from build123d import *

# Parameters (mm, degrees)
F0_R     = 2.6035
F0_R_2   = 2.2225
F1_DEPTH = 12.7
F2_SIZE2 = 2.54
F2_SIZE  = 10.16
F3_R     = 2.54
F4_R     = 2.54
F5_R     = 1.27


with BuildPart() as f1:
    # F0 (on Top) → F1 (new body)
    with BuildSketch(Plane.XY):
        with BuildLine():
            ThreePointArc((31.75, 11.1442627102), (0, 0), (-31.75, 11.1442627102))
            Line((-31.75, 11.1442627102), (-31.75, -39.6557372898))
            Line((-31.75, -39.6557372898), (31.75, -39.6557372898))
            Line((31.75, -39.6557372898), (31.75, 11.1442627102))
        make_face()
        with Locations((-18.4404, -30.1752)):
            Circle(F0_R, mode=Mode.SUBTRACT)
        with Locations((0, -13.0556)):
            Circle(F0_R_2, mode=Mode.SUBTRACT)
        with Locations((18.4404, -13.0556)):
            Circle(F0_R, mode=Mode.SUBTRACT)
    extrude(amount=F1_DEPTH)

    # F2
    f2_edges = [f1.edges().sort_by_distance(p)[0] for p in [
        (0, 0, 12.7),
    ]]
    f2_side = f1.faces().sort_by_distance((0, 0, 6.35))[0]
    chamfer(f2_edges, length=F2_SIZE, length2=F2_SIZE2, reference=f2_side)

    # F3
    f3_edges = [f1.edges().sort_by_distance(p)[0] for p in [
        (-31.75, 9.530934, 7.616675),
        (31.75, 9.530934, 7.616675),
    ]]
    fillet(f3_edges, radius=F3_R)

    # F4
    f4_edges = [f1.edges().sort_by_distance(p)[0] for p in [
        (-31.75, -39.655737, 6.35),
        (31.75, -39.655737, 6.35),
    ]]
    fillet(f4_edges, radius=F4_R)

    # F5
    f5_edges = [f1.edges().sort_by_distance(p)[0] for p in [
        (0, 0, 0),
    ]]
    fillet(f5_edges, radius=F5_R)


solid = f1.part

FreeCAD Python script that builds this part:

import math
import FreeCAD as App
import Part
import Sketcher
Q = App.Units.Quantity


def edges_at(feature, points):
    """Names of the edges that pass closest to the given points."""
    edges = feature.Shape.Edges
    near = lambda p: min(range(len(edges)), key=lambda i: edges[i].distToShape(Part.Vertex(*p))[0])
    return sorted({f"Edge{near(p) + 1}" for p in points})

doc = App.newDocument("Part")
body = doc.addObject("PartDesign::Body", "Body")

# Sketch on XY plane
sketch1 = doc.addObject("Sketcher::SketchObject", "Sketch")
body.addObject(sketch1)
sketch1.AttachmentSupport = (doc.XY_Plane, [""])
sketch1.MapMode = "FlatFace"
sketch1.addGeometry(Part.ArcOfCircle(Part.Circle(App.Vector(0, 50.8, 0), App.Vector(0, 0, 1), 50.8), math.radians(-129), math.radians(-51)), False)
sketch1.addGeometry(Part.LineSegment(App.Vector(-31.8, 11.1, 0), App.Vector(-31.8, -39.7, 0)), False)
sketch1.addGeometry(Part.LineSegment(App.Vector(-31.8, -39.7, 0), App.Vector(31.8, -39.7, 0)), False)
sketch1.addGeometry(Part.LineSegment(App.Vector(31.8, -39.7, 0), App.Vector(31.8, 11.1, 0)), False)
sketch1.addGeometry(Part.Circle(App.Vector(-18.4, -30.2, 0), App.Vector(0, 0, 1), 2.6), False)
sketch1.addGeometry(Part.Circle(App.Vector(0, -13.1, 0), App.Vector(0, 0, 1), 2.2), False)
sketch1.addGeometry(Part.Circle(App.Vector(18.4, -13.1, 0), App.Vector(0, 0, 1), 2.6), False)
sketch1.addConstraint(Sketcher.Constraint("Coincident", 0, 1, 1, 1))
sketch1.addConstraint(Sketcher.Constraint("Coincident", 1, 2, 2, 1))
sketch1.addConstraint(Sketcher.Constraint("Coincident", 2, 2, 3, 1))
sketch1.addConstraint(Sketcher.Constraint("Coincident", 3, 2, 0, 2))
sketch1.addConstraint(Sketcher.Constraint("Vertical", 1))
sketch1.addConstraint(Sketcher.Constraint("Horizontal", 2))
sketch1.addConstraint(Sketcher.Constraint("Vertical", 3))
sketch1.addConstraint(Sketcher.Constraint("Equal", 4, 6))
sketch1.addConstraint(Sketcher.Constraint("Symmetric", 0, 1, 3, 2, -2))
sketch1.addConstraint(Sketcher.Constraint("PointOnObject", 5, 3, -2))
sketch1.addConstraint(Sketcher.Constraint("Horizontal", 5, 3, 6, 3))
sketch1.addConstraint(Sketcher.Constraint("Radius", 0, Q("2 in")))
sketch1.addConstraint(Sketcher.Constraint("DistanceY", 1, 2, 1, 1, Q("2 in")))
sketch1.addConstraint(Sketcher.Constraint("Diameter", 4, Q("0.205 in")))
sketch1.addConstraint(Sketcher.Constraint("Diameter", 5, Q("0.175 in")))
sketch1.addConstraint(Sketcher.Constraint("DistanceX", 2, 1, 2, 2, Q("2.5 in")))
sketch1.addConstraint(Sketcher.Constraint("DistanceY", -1, 1, 0, 3, Q("2 in")))
sketch1.addConstraint(Sketcher.Constraint("DistanceX", 4, 3, -1, 1, Q("0.726 in")))
sketch1.addConstraint(Sketcher.Constraint("DistanceY", 4, 3, -1, 1, Q("1.188 in")))
sketch1.addConstraint(Sketcher.Constraint("DistanceY", 5, 3, -1, 1, Q("0.514 in")))
sketch1.addConstraint(Sketcher.Constraint("DistanceX", -1, 1, 6, 3, Q("0.726 in")))
pad1 = doc.addObject("PartDesign::Pad", "Pad")
body.addObject(pad1)
pad1.Profile = sketch1
pad1.Length = Q("0.5 in")
doc.recompute()

chamfer = doc.addObject("PartDesign::Chamfer", "Chamfer")
body.addObject(chamfer)
chamfer.Base = (pad1, edges_at(pad1, [(0, 0, 12.7)]))
chamfer.ChamferType = "Two distances"
chamfer.Size = Q("0.4 in")
chamfer.Size2 = Q("0.1 in")
doc.recompute()

fillet = doc.addObject("PartDesign::Fillet", "Fillet")
body.addObject(fillet)
fillet.Base = (chamfer, edges_at(chamfer, [(-31.75, 9.531, 7.617), (31.75, 9.531, 7.617)]))
fillet.Radius = Q("0.1 in")
doc.recompute()

fillet2 = doc.addObject("PartDesign::Fillet", "Fillet001")
body.addObject(fillet2)
fillet2.Base = (fillet, edges_at(fillet, [(-31.75, -39.656, 6.35), (31.75, -39.656, 6.35)]))
fillet2.Radius = Q("0.1 in")
doc.recompute()

fillet3 = doc.addObject("PartDesign::Fillet", "Fillet002")
body.addObject(fillet3)
fillet3.Base = (fillet2, edges_at(fillet2, [(0, 0, 0)]))
fillet3.Radius = Q("0.05 in")

doc.recompute()
